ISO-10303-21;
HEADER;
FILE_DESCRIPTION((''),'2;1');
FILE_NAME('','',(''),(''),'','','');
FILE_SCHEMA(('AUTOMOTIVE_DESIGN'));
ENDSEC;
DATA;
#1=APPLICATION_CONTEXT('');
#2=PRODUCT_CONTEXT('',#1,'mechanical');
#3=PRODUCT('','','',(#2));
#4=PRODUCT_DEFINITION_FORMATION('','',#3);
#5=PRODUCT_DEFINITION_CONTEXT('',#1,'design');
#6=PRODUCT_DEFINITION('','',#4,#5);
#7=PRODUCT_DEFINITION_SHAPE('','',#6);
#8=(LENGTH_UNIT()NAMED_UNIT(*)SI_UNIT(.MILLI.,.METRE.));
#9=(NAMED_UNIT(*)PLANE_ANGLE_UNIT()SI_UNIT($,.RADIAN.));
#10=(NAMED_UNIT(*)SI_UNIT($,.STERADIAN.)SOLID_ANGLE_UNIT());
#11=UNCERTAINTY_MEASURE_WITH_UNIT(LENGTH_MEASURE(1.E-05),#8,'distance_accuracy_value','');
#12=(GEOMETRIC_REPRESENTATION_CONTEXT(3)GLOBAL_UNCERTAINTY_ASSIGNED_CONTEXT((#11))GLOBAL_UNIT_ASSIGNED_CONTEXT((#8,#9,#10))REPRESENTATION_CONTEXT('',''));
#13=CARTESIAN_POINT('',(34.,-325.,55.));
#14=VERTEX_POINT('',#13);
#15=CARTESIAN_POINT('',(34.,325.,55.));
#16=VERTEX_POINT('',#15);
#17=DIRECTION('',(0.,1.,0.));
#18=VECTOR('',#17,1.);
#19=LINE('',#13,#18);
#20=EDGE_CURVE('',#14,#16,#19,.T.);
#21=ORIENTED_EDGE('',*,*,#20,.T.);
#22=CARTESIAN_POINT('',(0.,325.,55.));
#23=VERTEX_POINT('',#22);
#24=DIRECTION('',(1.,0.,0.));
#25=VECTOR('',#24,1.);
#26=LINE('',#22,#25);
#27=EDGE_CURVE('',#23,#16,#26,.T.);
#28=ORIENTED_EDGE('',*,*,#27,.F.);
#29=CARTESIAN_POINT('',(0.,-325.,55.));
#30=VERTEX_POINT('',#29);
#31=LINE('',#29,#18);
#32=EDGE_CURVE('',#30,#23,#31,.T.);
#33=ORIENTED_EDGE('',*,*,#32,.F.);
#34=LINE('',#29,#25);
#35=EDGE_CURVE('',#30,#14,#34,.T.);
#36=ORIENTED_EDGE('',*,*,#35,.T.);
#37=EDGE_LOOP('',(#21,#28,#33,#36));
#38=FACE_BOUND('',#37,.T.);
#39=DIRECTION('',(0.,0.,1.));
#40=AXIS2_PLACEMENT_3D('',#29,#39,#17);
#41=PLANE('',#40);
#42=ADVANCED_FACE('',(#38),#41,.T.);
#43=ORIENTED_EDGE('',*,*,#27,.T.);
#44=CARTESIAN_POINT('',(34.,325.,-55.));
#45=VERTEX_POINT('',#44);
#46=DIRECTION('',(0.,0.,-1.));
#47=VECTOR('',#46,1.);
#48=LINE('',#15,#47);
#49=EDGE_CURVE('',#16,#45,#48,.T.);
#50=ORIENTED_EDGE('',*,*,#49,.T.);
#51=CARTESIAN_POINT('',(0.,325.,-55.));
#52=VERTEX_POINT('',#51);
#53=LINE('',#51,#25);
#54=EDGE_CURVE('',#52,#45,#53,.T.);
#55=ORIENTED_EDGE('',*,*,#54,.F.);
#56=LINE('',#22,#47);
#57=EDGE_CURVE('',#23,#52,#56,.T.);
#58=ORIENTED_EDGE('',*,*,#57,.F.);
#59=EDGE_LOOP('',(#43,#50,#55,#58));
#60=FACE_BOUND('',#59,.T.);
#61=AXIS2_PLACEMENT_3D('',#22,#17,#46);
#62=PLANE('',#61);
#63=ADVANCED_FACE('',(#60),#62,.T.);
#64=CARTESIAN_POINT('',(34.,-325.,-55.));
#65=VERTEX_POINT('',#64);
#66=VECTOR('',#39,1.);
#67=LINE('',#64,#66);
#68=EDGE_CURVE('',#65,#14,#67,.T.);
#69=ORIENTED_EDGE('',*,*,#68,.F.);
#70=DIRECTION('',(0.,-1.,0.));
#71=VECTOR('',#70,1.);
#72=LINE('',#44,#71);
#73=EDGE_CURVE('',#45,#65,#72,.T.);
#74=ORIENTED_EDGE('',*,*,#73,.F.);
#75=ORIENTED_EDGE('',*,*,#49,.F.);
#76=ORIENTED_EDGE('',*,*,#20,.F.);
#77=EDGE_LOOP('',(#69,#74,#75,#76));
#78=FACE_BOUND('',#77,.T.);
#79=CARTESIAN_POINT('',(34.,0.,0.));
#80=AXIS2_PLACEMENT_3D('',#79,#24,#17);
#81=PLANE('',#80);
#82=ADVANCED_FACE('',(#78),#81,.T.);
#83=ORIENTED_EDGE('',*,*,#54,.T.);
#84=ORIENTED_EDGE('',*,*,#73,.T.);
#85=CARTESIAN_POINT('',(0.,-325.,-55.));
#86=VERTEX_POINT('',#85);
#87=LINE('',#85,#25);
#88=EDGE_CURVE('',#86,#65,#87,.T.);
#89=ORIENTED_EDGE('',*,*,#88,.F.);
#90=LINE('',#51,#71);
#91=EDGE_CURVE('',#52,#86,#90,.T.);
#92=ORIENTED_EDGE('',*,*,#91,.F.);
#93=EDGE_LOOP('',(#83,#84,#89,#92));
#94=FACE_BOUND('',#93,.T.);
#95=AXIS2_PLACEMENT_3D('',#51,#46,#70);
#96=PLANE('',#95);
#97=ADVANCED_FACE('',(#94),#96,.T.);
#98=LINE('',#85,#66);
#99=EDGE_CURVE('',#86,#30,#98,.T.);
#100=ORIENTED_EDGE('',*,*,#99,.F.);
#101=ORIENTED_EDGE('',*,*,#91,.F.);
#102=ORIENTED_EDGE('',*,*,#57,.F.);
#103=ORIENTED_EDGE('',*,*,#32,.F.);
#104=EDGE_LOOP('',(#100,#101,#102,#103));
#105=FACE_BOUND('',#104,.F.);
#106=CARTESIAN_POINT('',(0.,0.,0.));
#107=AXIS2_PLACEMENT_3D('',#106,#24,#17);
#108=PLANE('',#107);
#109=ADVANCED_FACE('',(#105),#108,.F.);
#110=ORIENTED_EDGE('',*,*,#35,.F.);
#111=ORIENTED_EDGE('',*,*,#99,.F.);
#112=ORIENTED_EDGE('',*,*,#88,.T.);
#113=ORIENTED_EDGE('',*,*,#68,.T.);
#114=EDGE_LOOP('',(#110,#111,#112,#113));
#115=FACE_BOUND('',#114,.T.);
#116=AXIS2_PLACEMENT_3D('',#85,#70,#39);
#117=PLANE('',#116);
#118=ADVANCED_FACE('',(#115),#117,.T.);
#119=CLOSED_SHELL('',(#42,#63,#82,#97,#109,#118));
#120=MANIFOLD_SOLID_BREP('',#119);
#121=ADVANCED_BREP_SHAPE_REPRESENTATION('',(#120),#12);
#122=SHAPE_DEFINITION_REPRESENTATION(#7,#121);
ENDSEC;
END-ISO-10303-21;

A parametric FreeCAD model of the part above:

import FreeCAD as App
import Part
import Sketcher

V = App.Vector

doc = App.newDocument("Part")
body = doc.addObject("PartDesign::Body", "Body")

sketch1 = doc.addObject("Sketcher::SketchObject", "Sketch")
body.addObject(sketch1)
sketch1.AttachmentSupport = (doc.YZ_Plane, [""])
sketch1.MapMode = "FlatFace"
sketch1.addGeometry(Part.LineSegment(V(325, 55, 0), V(-325, 55, 0)), False)
sketch1.addGeometry(Part.LineSegment(V(-325, 55, 0), V(-325, -55, 0)), False)
sketch1.addGeometry(Part.LineSegment(V(-325, -55, 0), V(325, -55, 0)), False)
sketch1.addGeometry(Part.LineSegment(V(325, -55, 0), V(325, 55, 0)), False)
sketch1.addConstraint(Sketcher.Constraint("Coincident", 0, 2, 1, 1))
sketch1.addConstraint(Sketcher.Constraint("Coincident", 1, 2, 2, 1))
sketch1.addConstraint(Sketcher.Constraint("Coincident", 2, 2, 3, 1))
sketch1.addConstraint(Sketcher.Constraint("Coincident", 3, 2, 0, 1))
sketch1.addConstraint(Sketcher.Constraint("Horizontal", 0))
sketch1.addConstraint(Sketcher.Constraint("Vertical", 1))
sketch1.addConstraint(Sketcher.Constraint("Horizontal", 2))
sketch1.addConstraint(Sketcher.Constraint("Vertical", 3))
sketch1.addConstraint(Sketcher.Constraint("Symmetric", 0, 2, 2, 2, -1, 1))
sketch1.addConstraint(Sketcher.Constraint("DistanceX", 0, 2, 0, 1, 650.0))
sketch1.addConstraint(Sketcher.Constraint("DistanceY", 1, 2, 1, 1, 110.0))
pad1 = doc.addObject("PartDesign::Pad", "Pad")
body.addObject(pad1)
pad1.Profile = sketch1
pad1.Length = 34

doc.recompute()
